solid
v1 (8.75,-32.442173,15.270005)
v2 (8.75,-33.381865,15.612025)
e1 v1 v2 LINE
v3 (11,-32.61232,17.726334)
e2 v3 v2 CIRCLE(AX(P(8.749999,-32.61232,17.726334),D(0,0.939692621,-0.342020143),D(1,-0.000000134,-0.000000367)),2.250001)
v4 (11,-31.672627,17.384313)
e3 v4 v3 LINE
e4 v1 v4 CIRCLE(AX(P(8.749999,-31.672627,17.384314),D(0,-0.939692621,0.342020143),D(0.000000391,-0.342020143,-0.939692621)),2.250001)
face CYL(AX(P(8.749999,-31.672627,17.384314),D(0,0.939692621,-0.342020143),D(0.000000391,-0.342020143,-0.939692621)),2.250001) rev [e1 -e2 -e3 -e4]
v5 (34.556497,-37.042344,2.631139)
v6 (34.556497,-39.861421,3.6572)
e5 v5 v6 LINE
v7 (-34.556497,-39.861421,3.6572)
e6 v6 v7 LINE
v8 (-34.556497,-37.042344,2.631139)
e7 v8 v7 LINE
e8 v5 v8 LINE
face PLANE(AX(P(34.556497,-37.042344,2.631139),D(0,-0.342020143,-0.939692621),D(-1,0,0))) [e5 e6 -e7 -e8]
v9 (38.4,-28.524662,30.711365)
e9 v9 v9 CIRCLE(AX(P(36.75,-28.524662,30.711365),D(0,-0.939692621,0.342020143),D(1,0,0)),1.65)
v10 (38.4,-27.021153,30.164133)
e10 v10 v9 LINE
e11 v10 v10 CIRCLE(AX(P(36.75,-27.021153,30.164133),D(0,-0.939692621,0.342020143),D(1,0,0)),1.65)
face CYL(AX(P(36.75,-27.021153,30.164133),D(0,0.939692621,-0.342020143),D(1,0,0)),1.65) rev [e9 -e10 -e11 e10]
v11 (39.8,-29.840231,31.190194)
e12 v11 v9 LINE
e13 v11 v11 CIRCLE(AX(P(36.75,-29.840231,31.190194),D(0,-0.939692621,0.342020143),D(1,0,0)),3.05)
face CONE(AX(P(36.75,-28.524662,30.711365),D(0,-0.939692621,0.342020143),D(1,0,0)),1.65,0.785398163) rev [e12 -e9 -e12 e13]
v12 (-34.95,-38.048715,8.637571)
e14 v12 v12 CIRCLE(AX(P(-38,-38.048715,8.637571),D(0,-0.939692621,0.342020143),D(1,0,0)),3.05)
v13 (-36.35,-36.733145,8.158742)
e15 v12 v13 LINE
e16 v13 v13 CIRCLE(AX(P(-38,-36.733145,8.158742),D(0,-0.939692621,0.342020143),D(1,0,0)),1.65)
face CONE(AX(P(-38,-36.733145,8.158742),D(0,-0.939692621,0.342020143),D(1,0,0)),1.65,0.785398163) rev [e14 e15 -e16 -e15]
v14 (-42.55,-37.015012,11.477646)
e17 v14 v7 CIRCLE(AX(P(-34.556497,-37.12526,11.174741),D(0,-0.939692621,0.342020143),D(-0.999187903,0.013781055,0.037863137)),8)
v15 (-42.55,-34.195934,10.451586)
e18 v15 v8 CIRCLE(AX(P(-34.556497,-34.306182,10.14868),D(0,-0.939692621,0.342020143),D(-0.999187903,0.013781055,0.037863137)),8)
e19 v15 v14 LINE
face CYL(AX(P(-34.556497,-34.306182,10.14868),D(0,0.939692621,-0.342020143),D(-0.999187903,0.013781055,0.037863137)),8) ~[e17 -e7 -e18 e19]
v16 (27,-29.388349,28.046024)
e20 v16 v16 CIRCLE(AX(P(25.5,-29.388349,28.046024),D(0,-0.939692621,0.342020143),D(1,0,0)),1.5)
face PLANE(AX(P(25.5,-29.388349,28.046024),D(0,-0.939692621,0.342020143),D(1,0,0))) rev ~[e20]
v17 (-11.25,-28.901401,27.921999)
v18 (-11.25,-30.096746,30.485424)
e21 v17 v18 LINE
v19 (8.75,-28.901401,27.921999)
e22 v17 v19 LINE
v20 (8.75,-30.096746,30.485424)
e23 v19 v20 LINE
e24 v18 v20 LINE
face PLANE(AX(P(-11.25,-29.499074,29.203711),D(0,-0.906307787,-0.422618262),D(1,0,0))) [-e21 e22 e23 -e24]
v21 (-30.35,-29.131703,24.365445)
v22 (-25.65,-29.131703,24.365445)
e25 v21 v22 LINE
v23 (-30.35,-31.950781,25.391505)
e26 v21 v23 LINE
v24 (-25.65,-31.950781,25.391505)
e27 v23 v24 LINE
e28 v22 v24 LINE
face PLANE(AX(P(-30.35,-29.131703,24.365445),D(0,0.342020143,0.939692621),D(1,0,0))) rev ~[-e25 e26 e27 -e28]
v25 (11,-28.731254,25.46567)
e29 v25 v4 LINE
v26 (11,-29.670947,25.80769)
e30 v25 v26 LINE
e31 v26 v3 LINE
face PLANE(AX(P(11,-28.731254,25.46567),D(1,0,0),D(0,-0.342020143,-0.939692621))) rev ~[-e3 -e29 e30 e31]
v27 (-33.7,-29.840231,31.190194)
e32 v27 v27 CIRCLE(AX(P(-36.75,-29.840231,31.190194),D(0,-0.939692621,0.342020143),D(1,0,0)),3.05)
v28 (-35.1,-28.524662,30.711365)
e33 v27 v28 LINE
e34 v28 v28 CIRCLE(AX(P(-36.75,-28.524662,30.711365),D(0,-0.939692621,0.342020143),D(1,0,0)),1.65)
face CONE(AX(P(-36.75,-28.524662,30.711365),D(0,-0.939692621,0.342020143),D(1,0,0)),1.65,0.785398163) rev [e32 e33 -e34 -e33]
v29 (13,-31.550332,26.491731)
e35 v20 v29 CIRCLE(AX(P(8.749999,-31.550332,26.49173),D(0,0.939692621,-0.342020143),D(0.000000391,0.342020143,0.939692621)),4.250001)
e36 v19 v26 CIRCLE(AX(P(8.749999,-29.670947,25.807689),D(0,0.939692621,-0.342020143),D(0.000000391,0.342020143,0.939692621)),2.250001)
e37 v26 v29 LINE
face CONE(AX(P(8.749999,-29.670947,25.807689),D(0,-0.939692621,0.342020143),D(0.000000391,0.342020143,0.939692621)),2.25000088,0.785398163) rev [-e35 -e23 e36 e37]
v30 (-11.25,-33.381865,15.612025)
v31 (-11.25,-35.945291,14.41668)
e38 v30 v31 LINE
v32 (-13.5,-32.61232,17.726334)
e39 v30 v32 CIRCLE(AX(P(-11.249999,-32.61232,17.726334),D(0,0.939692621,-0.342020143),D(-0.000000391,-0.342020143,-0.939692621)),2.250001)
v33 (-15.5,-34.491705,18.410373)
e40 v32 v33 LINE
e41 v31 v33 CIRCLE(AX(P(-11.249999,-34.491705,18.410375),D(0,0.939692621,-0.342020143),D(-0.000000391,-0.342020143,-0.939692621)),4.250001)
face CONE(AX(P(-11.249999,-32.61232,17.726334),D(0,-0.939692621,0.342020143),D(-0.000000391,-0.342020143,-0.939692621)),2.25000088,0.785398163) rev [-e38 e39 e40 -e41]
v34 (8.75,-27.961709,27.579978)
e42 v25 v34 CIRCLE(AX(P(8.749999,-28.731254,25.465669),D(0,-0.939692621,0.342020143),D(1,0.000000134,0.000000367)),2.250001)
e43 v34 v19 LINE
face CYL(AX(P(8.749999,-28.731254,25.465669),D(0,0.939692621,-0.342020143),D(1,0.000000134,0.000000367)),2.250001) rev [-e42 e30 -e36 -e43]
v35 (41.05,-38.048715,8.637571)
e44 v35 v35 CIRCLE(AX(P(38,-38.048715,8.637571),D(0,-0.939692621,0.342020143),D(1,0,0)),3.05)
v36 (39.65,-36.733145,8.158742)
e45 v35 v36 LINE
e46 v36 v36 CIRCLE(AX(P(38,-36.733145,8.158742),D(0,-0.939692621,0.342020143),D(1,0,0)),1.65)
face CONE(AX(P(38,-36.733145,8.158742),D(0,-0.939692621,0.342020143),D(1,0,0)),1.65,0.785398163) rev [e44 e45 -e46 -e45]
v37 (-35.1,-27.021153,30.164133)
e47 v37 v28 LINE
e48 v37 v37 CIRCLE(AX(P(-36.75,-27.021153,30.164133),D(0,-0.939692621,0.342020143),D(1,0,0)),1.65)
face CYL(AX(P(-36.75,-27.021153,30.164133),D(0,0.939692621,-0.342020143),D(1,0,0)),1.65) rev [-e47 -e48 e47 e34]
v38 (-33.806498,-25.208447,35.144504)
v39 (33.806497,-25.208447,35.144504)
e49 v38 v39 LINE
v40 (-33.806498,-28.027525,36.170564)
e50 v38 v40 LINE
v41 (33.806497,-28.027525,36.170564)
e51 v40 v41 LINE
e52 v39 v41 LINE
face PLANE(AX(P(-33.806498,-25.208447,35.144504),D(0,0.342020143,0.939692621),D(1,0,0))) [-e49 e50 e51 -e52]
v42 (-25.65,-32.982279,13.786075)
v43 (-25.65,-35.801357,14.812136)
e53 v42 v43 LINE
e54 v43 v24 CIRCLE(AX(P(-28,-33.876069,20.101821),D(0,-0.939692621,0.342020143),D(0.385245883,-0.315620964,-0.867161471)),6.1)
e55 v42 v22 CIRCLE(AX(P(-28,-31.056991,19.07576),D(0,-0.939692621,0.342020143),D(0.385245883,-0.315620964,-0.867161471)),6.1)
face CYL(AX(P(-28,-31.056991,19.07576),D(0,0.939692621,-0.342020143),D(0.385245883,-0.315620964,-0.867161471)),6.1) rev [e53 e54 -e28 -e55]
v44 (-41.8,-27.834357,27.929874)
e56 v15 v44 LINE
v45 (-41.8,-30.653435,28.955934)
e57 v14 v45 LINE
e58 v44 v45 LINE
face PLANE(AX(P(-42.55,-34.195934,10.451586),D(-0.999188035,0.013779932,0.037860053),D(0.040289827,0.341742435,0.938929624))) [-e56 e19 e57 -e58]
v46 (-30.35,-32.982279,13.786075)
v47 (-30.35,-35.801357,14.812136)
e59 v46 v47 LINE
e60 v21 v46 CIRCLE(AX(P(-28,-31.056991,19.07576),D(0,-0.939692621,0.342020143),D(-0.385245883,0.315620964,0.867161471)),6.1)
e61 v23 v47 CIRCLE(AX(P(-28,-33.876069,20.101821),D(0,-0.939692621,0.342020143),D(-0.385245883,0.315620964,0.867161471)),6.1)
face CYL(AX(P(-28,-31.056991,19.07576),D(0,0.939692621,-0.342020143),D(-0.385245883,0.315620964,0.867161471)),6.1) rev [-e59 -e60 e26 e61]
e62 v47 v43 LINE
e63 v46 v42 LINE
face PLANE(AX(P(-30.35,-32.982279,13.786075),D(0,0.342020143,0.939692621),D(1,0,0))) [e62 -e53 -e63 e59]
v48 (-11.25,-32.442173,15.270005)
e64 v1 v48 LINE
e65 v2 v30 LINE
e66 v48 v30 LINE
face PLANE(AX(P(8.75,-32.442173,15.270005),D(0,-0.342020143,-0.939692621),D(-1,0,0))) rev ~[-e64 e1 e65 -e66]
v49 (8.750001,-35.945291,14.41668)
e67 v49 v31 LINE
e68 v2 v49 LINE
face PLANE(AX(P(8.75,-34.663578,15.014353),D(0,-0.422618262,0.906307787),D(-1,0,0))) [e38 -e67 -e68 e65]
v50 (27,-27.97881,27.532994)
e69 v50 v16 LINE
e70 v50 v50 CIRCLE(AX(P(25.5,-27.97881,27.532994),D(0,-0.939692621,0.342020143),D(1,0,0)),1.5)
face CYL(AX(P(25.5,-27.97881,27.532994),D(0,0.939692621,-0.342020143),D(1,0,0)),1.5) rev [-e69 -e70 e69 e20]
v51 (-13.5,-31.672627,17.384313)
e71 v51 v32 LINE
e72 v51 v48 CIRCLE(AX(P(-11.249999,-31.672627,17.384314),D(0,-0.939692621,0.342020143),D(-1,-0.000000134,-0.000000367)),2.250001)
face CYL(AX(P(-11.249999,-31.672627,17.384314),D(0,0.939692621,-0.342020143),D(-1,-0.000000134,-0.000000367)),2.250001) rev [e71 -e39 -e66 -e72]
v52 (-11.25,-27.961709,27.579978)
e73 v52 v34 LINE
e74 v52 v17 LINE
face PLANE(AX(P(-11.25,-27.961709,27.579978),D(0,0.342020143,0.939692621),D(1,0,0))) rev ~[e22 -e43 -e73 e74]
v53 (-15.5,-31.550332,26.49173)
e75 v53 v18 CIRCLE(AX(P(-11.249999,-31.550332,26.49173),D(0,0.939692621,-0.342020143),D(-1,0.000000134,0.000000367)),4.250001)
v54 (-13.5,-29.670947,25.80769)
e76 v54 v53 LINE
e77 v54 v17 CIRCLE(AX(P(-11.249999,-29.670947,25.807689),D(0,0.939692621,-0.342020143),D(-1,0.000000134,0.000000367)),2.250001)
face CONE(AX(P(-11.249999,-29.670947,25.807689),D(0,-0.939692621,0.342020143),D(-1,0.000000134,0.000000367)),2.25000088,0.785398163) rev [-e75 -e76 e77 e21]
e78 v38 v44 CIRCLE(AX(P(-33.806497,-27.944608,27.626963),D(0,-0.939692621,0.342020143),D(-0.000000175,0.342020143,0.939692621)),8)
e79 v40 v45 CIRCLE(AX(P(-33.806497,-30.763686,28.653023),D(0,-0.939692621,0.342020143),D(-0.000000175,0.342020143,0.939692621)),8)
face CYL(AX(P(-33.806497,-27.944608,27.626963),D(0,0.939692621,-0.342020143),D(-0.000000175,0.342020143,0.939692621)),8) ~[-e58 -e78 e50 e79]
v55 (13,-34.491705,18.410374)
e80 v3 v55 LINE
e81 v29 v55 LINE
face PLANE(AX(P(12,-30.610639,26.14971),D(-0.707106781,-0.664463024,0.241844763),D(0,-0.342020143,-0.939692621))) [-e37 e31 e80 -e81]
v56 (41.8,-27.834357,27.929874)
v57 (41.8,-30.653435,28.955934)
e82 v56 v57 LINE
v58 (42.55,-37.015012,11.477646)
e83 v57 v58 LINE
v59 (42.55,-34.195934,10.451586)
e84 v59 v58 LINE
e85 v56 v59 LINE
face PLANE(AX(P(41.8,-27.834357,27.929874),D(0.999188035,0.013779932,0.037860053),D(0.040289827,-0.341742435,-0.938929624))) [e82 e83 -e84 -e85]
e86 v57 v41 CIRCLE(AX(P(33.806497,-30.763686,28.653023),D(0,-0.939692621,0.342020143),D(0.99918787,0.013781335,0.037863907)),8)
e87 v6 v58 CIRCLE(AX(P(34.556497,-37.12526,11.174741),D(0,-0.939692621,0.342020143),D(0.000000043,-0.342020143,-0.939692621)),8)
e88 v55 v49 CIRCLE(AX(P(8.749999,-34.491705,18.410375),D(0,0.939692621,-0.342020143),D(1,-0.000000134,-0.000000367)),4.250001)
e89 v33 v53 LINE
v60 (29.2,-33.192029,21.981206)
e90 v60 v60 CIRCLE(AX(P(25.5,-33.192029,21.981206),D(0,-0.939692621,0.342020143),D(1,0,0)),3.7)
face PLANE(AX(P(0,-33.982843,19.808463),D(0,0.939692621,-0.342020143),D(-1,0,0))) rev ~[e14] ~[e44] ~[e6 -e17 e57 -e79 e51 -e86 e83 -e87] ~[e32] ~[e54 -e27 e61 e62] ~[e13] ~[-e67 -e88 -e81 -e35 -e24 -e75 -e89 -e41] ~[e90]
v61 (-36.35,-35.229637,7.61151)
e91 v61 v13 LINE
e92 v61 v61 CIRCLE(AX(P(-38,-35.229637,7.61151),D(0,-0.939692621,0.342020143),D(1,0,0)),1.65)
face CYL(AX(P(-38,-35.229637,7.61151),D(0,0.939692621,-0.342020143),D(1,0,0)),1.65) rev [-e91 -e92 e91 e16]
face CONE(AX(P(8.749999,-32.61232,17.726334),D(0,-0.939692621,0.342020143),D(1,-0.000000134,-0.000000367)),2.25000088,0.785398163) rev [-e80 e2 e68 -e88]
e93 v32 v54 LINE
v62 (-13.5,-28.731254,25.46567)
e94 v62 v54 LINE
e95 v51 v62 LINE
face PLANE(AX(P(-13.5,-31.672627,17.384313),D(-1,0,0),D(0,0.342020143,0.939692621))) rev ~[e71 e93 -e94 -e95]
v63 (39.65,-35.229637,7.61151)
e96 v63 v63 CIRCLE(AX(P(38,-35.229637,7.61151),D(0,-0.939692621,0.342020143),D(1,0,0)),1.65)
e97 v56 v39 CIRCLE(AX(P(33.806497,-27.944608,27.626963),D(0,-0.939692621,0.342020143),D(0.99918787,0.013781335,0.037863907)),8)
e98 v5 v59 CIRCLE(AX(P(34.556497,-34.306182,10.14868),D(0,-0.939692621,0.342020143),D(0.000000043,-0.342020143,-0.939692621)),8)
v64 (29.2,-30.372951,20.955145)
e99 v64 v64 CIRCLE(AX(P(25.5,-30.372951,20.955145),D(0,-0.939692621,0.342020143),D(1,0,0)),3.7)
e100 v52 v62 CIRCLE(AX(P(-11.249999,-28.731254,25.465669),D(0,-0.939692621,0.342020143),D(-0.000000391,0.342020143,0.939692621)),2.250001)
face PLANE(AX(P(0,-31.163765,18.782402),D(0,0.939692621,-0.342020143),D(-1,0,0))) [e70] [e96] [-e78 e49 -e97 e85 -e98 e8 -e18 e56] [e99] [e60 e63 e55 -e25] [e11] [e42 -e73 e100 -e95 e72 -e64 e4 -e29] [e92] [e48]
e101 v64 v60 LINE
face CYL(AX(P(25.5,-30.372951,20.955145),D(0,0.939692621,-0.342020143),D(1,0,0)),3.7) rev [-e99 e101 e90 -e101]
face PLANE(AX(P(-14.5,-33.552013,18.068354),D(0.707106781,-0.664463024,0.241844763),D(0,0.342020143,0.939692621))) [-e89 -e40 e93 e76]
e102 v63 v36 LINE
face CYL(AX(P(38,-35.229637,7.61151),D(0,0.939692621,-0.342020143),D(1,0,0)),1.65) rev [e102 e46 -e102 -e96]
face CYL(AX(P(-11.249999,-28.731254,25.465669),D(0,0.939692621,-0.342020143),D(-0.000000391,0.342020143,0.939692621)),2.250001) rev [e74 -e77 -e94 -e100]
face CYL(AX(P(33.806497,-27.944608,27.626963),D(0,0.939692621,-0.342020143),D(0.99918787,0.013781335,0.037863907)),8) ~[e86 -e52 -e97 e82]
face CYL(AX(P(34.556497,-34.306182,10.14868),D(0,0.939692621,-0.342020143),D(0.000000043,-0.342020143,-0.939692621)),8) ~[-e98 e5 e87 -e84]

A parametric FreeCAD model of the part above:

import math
import FreeCAD as App
import Part
import Sketcher

V = App.Vector


def edges_at(feature, points):
    """Names of the edges that pass closest to the given points."""
    edges = feature.Shape.Edges
    near = lambda p: min(range(len(edges)), key=lambda i: edges[i].distToShape(Part.Vertex(*p))[0])
    return sorted({f"Edge{near(p) + 1}" for p in points})

doc = App.newDocument("Part")
body = doc.addObject("PartDesign::Body", "Body")

# Sketch on XZ plane
sketch1 = doc.addObject("Sketcher::SketchObject", "Sketch")
body.addObject(sketch1)
sketch1.AttachmentSupport = (doc.XZ_Plane, [""])
sketch1.MapMode = "FlatFace"
sketch1.addGeometry([
    Part.LineSegment(V(33.806497, 37.4, 0), V(-33.806498, 37.4, 0)),  # 0
    Part.ArcOfCircle(Part.Circle(V(-33.806497, 29.4, 0), V(0, 0, 1), 8), math.radians(90.00001), math.radians(177.690703)),  # 1
    Part.LineSegment(V(-41.8, 29.722351, 0), V(-42.55, 11.122345, 0)),  # 2
    Part.ArcOfCircle(Part.Circle(V(-34.556497, 10.8, 0), V(0, 0, 1), 8), math.radians(177.69075), math.radians(269.999998)),  # 3
    Part.LineSegment(V(-34.556497, 2.8, 0), V(34.556497, 2.8, 0)),  # 4
    Part.ArcOfCircle(Part.Circle(V(34.556497, 10.8, 0), V(0, 0, 1), 8), math.radians(-89.999998), math.radians(2.30925)),  # 5
    Part.LineSegment(V(42.55, 11.122345, 0), V(41.8, 29.722351, 0)),  # 6
    Part.ArcOfCircle(Part.Circle(V(33.806497, 29.4, 0), V(0, 0, 1), 8), math.radians(2.309297), math.radians(89.999997)),  # 7
    Part.Circle(V(38, 8.1, 0), V(0, 0, 1), 1.65),  # 8
    Part.Circle(V(-38, 8.1, 0), V(0, 0, 1), 1.65),  # 9
    Part.Circle(V(25.5, 22.3, 0), V(0, 0, 1), 3.7),  # 10
    Part.Circle(V(36.75, 32.1, 0), V(0, 0, 1), 1.65),  # 11
    Part.LineSegment(V(-11.25, 29.35, 0), V(8.75, 29.35, 0)),  # 12
    Part.ArcOfCircle(Part.Circle(V(8.749999, 27.099999, 0), V(0, 0, 1), 2.250001), math.radians(0.000022), math.radians(89.999978)),  # 13
    Part.LineSegment(V(11, 27.1, 0), V(11, 18.5, 0)),  # 14
    Part.ArcOfCircle(Part.Circle(V(8.749999, 18.500001, 0), V(0, 0, 1), 2.250001), math.radians(-89.999978), math.radians(-0.000022)),  # 15
    Part.LineSegment(V(8.75, 16.25, 0), V(-11.25, 16.25, 0)),  # 16
    Part.ArcOfCircle(Part.Circle(V(-11.249999, 18.500001, 0), V(0, 0, 1), 2.250001), math.radians(-179.999978), math.radians(-90.000022)),  # 17
    Part.LineSegment(V(-13.5, 18.5, 0), V(-13.5, 27.1, 0)),  # 18
    Part.ArcOfCircle(Part.Circle(V(-11.249999, 27.099999, 0), V(0, 0, 1), 2.250001), math.radians(90.000022), math.radians(179.999978)),  # 19
    Part.LineSegment(V(-30.35, 25.929165, 0), V(-25.65, 25.929165, 0)),  # 20
    Part.ArcOfCircle(Part.Circle(V(-28, 20.3, 0), V(0, 0, 1), 6.1), math.radians(-67.340994), math.radians(67.340994)),  # 21
    Part.LineSegment(V(-25.65, 14.670835, 0), V(-30.35, 14.670835, 0)),  # 22
    Part.ArcOfCircle(Part.Circle(V(-28, 20.3, 0), V(0, 0, 1), 6.1), math.radians(112.659006), math.radians(247.340994)),  # 23
    Part.Circle(V(-36.75, 32.1, 0), V(0, 0, 1), 1.65),  # 24
], False)
sketch1.addConstraint([
    Sketcher.Constraint("Coincident", 0, 2, 1, 1),
    Sketcher.Constraint("Coincident", 1, 2, 2, 1),
    Sketcher.Constraint("Coincident", 2, 2, 3, 1),
    Sketcher.Constraint("Coincident", 3, 2, 4, 1),
    Sketcher.Constraint("Coincident", 4, 2, 5, 1),
    Sketcher.Constraint("Coincident", 5, 2, 6, 1),
    Sketcher.Constraint("Coincident", 6, 2, 7, 1),
    Sketcher.Constraint("Coincident", 7, 2, 0, 1),
    Sketcher.Constraint("Coincident", 12, 2, 13, 2),
    Sketcher.Constraint("Coincident", 13, 1, 14, 1),
    Sketcher.Constraint("Coincident", 14, 2, 15, 2),
    Sketcher.Constraint("Coincident", 15, 1, 16, 1),
    Sketcher.Constraint("Coincident", 16, 2, 17, 2),
    Sketcher.Constraint("Coincident", 17, 1, 18, 1),
    Sketcher.Constraint("Coincident", 18, 2, 19, 2),
    Sketcher.Constraint("Coincident", 19, 1, 12, 1),
    Sketcher.Constraint("Coincident", 20, 2, 21, 2),
    Sketcher.Constraint("Coincident", 21, 1, 22, 1),
    Sketcher.Constraint("Coincident", 22, 2, 23, 2),
    Sketcher.Constraint("Coincident", 23, 1, 20, 1),
    Sketcher.Constraint("Horizontal", 0),
    Sketcher.Constraint("Horizontal", 4),
    Sketcher.Constraint("Horizontal", 12),
    Sketcher.Constraint("Vertical", 14),
    Sketcher.Constraint("Horizontal", 16),
    Sketcher.Constraint("Vertical", 18),
    Sketcher.Constraint("Horizontal", 20),
    Sketcher.Constraint("Horizontal", 22),
    Sketcher.Constraint("Coincident", 23, 3, 21, 3),
    Sketcher.Constraint("Radius", 1, 8.0),
    Sketcher.Constraint("Radius", 3, 8.0),
    Sketcher.Constraint("Radius", 5, 8.0),
    Sketcher.Constraint("Radius", 7, 8.0),
    Sketcher.Constraint("Diameter", 8, 3.3),
    Sketcher.Constraint("Diameter", 9, 3.3),
    Sketcher.Constraint("Diameter", 10, 7.4),
    Sketcher.Constraint("Diameter", 11, 3.3),
    Sketcher.Constraint("Diameter", 24, 3.3),
    Sketcher.Constraint("Radius", 21, 6.1),
    Sketcher.Constraint("Radius", 23, 6.1),
    Sketcher.Constraint("DistanceX", 12, 1, 12, 2, 20.0),
    Sketcher.Constraint("DistanceX", 16, 2, 16, 1, 20.0),
    Sketcher.Constraint("Radius", 13, 2.250001),
    Sketcher.Constraint("Radius", 15, 2.250001),
    Sketcher.Constraint("Radius", 17, 2.250001),
    Sketcher.Constraint("Radius", 19, 2.250001),
    Sketcher.Constraint("DistanceX", 20, 1, 20, 2, 4.7),
    Sketcher.Constraint("DistanceX", 22, 2, 22, 1, 4.7),
    Sketcher.Constraint("DistanceY", 14, 2, 14, 1, 8.6),
    Sketcher.Constraint("DistanceY", 18, 1, 18, 2, 8.6),
    Sketcher.Constraint("DistanceX", -1, 1, 8, 3, 38.0),
    Sketcher.Constraint("DistanceX", 9, 3, -1, 1, 38.0),
    Sketcher.Constraint("DistanceX", 21, 3, -1, 1, 28.0),
    Sketcher.Constraint("DistanceX", -1, 1, 13, 1, 11.0),
    Sketcher.Constraint("DistanceY", 8, 3, 11, 3, 24.0),
    Sketcher.Constraint("DistanceX", 13, 3, 11, 3, 28.000001),
    Sketcher.Constraint("DistanceY", 13, 3, 11, 3, 5.000001),
    Sketcher.Constraint("DistanceX", 17, 3, 15, 3, 19.999998),
    Sketcher.Constraint("DistanceY", 9, 3, 24, 3, 24.0),
    Sketcher.Constraint("DistanceX", 19, 3, 12, 2, 19.999999),
    Sketcher.Constraint("DistanceY", -1, 1, 1, 3, 29.4),
    Sketcher.Constraint("DistanceY", -1, 1, 3, 3, 10.8),
    Sketcher.Constraint("DistanceY", -1, 1, 8, 3, 8.1),
    Sketcher.Constraint("DistanceY", -1, 1, 9, 3, 8.1),
    Sketcher.Constraint("DistanceX", -1, 1, 10, 3, 25.5),
    Sketcher.Constraint("DistanceY", -1, 1, 10, 3, 22.3),
    Sketcher.Constraint("DistanceY", -1, 1, 15, 3, 18.500001),
    Sketcher.Constraint("DistanceY", -1, 1, 21, 3, 20.3),
    Sketcher.Constraint("DistanceX", 1, 2, -1, 1, 41.8),
    Sketcher.Constraint("DistanceX", -1, 1, 6, 2, 41.8),
    Sketcher.Constraint("DistanceY", -1, 1, 13, 1, 27.1),
    Sketcher.Constraint("DistanceY", -1, 1, 17, 1, 18.5),
    Sketcher.Constraint("DistanceX", 24, 3, 20, 2, 11.1),
    Sketcher.Constraint("DistanceX", 2, 2, -1, 1, 42.55),
    Sketcher.Constraint("DistanceX", -1, 1, 5, 2, 42.55),
    Sketcher.Constraint("DistanceX", -1, 1, 15, 1, 8.75),
    Sketcher.Constraint("DistanceX", 3, 3, 1, 3, 0.75),
    Sketcher.Constraint("DistanceX", 7, 3, 5, 3, 0.75),
    Sketcher.Constraint("DistanceX", 7, 3, 4, 2, 0.75),
    Sketcher.Constraint("DistanceX", 7, 2, 5, 3, 0.75),
    Sketcher.Constraint("DistanceX", 0, 2, 21, 3, 5.806498),
    Sketcher.Constraint("DistanceX", 0, 2, 0, 1, 67.612995),
    Sketcher.Constraint("DistanceX", 4, 1, 4, 2, 69.112994),
    Sketcher.Constraint("DistanceY", -1, 1, 1, 2, 29.722351),
])
pad1 = doc.addObject("PartDesign::Pad", "Pad")
body.addObject(pad1)
pad1.Profile = sketch1
pad1.Length = 3
doc.recompute()

chamfer = doc.addObject("PartDesign::Chamfer", "Chamfer")
body.addObject(chamfer)
chamfer.Base = (pad1, edges_at(pad1, [(-1.25, -3, 29.35)]))
chamfer.Size = 2
doc.recompute()

chamfer2 = doc.addObject("PartDesign::Chamfer", "Chamfer001")
body.addObject(chamfer2)
chamfer2.Base = (chamfer, edges_at(chamfer, [
    (-38.4, -3, 32.1),
    (-39.65, -3, 8.1),
    (35.1, -3, 32.1),
    (36.35, -3, 8.1),
]))
chamfer2.Size = 1.4

# Sketch on XZ plane
sketch2 = doc.addObject("Sketcher::SketchObject", "Sketch001")
body.addObject(sketch2)
sketch2.AttachmentSupport = (doc.XZ_Plane, [""])
sketch2.MapMode = "FlatFace"
sketch2.addGeometry(Part.Circle(V(25.5, 29.3, 0), V(0, 0, 1), 1.5), False)
sketch2.addConstraint([
    Sketcher.Constraint("Diameter", 0, 3.0),
    Sketcher.Constraint("DistanceX", -1, 1, 0, 3, 25.5),
    Sketcher.Constraint("DistanceY", -1, 1, 0, 3, 29.3),
])
pocket1 = doc.addObject("PartDesign::Pocket", "Pocket")
body.addObject(pocket1)
pocket1.Profile = sketch2
pocket1.Length = 1.5
pocket1.Reversed = True
body2 = doc.addObject("PartDesign::Body", "Body001")
doc.recompute()

body.Placement = App.Placement(V(0, -38, 0), App.Rotation(V(1, 0, 0), 340))
boolean = doc.addObject("PartDesign::Boolean", "Boolean")
body2.addObject(boolean)
boolean.Type = "Fuse"
boolean.addObjects([body])

doc.recompute()
